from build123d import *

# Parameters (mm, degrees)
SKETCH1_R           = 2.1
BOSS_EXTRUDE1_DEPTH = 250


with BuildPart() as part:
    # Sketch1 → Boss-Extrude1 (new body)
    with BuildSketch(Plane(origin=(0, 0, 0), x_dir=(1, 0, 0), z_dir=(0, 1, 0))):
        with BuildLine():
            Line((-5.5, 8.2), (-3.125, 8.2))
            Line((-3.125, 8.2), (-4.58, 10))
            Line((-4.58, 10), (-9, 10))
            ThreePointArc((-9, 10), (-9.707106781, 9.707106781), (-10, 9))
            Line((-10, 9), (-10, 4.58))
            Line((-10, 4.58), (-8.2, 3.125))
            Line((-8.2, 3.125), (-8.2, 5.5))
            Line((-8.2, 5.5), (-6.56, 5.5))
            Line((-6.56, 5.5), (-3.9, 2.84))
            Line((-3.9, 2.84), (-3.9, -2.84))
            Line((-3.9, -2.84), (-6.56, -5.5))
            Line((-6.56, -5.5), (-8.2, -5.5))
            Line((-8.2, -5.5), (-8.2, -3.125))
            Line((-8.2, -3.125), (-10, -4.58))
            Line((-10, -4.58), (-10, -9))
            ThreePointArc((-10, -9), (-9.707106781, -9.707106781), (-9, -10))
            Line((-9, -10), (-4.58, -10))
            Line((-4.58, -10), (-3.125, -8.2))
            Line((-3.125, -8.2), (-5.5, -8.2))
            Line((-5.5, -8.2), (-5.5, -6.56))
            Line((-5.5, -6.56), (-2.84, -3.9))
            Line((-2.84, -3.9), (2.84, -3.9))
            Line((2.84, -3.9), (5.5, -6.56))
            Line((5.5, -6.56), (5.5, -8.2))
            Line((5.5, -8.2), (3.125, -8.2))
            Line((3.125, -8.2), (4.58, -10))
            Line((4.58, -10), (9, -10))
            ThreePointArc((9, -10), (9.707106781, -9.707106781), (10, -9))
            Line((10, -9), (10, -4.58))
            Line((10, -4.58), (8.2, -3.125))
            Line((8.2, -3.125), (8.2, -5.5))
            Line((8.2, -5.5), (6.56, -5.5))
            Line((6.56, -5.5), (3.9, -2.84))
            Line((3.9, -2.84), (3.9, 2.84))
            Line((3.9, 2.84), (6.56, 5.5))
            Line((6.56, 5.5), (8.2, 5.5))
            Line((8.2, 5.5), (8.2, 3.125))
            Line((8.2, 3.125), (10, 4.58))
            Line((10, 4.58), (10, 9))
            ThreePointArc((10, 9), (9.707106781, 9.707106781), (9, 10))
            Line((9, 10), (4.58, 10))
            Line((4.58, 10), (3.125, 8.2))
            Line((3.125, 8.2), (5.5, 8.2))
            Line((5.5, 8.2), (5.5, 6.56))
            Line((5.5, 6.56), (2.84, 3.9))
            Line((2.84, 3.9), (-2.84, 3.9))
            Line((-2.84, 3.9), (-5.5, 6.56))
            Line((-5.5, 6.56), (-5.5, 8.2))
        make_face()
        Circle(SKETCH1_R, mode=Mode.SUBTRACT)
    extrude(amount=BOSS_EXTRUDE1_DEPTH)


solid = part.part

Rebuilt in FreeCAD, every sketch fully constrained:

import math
import FreeCAD as App
import Part
import Sketcher
from FreeCAD import Vector
Q = App.Units.Quantity

doc = App.newDocument("Part")
body = doc.addObject("PartDesign::Body", "Body")

sketch1 = body.newObject("Sketcher::SketchObject", "Sketch")
sketch1.AttachmentSupport = (doc.getObject("XZ_Plane"), [""])
sketch1.MapMode = "FlatFace"
sketch1.addGeometry(Part.LineSegment(Vector(-5.5, -8.2, 0), Vector(-3.1, -8.2, 0)), False)
sketch1.addGeometry(Part.LineSegment(Vector(-3.1, -8.2, 0), Vector(-4.6, -10, 0)), False)
sketch1.addGeometry(Part.LineSegment(Vector(-4.6, -10, 0), Vector(-9, -10, 0)), False)
sketch1.addGeometry(Part.ArcOfCircle(Part.Circle(Vector(-9, -9, 0), Vector(0, 0, 1), 1), math.radians(-180), math.radians(-90)), False)
sketch1.addGeometry(Part.LineSegment(Vector(-10, -9, 0), Vector(-10, -4.6, 0)), False)
sketch1.addGeometry(Part.LineSegment(Vector(-10, -4.6, 0), Vector(-8.2, -3.1, 0)), False)
sketch1.addGeometry(Part.LineSegment(Vector(-8.2, -3.1, 0), Vector(-8.2, -5.5, 0)), False)
sketch1.addGeometry(Part.LineSegment(Vector(-8.2, -5.5, 0), Vector(-6.6, -5.5, 0)), False)
sketch1.addGeometry(Part.LineSegment(Vector(-6.6, -5.5, 0), Vector(-3.9, -2.8, 0)), False)
sketch1.addGeometry(Part.LineSegment(Vector(-3.9, -2.8, 0), Vector(-3.9, 2.8, 0)), False)
sketch1.addGeometry(Part.LineSegment(Vector(-3.9, 2.8, 0), Vector(-6.6, 5.5, 0)), False)
sketch1.addGeometry(Part.LineSegment(Vector(-6.6, 5.5, 0), Vector(-8.2, 5.5, 0)), False)
sketch1.addGeometry(Part.LineSegment(Vector(-8.2, 5.5, 0), Vector(-8.2, 3.1, 0)), False)
sketch1.addGeometry(Part.LineSegment(Vector(-8.2, 3.1, 0), Vector(-10, 4.6, 0)), False)
sketch1.addGeometry(Part.LineSegment(Vector(-10, 4.6, 0), Vector(-10, 9, 0)), False)
sketch1.addGeometry(Part.ArcOfCircle(Part.Circle(Vector(-9, 9, 0), Vector(0, 0, 1), 1), math.radians(90), math.radians(180)), False)
sketch1.addGeometry(Part.LineSegment(Vector(-9, 10, 0), Vector(-4.6, 10, 0)), False)
sketch1.addGeometry(Part.LineSegment(Vector(-4.6, 10, 0), Vector(-3.1, 8.2, 0)), False)
sketch1.addGeometry(Part.LineSegment(Vector(-3.1, 8.2, 0), Vector(-5.5, 8.2, 0)), False)
sketch1.addGeometry(Part.LineSegment(Vector(-5.5, 8.2, 0), Vector(-5.5, 6.6, 0)), False)
sketch1.addGeometry(Part.LineSegment(Vector(-5.5, 6.6, 0), Vector(-2.8, 3.9, 0)), False)
sketch1.addGeometry(Part.LineSegment(Vector(-2.8, 3.9, 0), Vector(2.8, 3.9, 0)), False)
sketch1.addGeometry(Part.LineSegment(Vector(2.8, 3.9, 0), Vector(5.5, 6.6, 0)), False)
sketch1.addGeometry(Part.LineSegment(Vector(5.5, 6.6, 0), Vector(5.5, 8.2, 0)), False)
sketch1.addGeometry(Part.LineSegment(Vector(5.5, 8.2, 0), Vector(3.1, 8.2, 0)), False)
sketch1.addGeometry(Part.LineSegment(Vector(3.1, 8.2, 0), Vector(4.6, 10, 0)), False)
sketch1.addGeometry(Part.LineSegment(Vector(4.6, 10, 0), Vector(9, 10, 0)), False)
sketch1.addGeometry(Part.ArcOfCircle(Part.Circle(Vector(9, 9, 0), Vector(0, 0, 1), 1), math.radians(0), math.radians(90)), False)
sketch1.addGeometry(Part.LineSegment(Vector(10, 9, 0), Vector(10, 4.6, 0)), False)
sketch1.addGeometry(Part.LineSegment(Vector(10, 4.6, 0), Vector(8.2, 3.1, 0)), False)
sketch1.addGeometry(Part.LineSegment(Vector(8.2, 3.1, 0), Vector(8.2, 5.5, 0)), False)
sketch1.addGeometry(Part.LineSegment(Vector(8.2, 5.5, 0), Vector(6.6, 5.5, 0)), False)
sketch1.addGeometry(Part.LineSegment(Vector(6.6, 5.5, 0), Vector(3.9, 2.8, 0)), False)
sketch1.addGeometry(Part.LineSegment(Vector(3.9, 2.8, 0), Vector(3.9, -2.8, 0)), False)
sketch1.addGeometry(Part.LineSegment(Vector(3.9, -2.8, 0), Vector(6.6, -5.5, 0)), False)
sketch1.addGeometry(Part.LineSegment(Vector(6.6, -5.5, 0), Vector(8.2, -5.5, 0)), False)
sketch1.addGeometry(Part.LineSegment(Vector(8.2, -5.5, 0), Vector(8.2, -3.1, 0)), False)
sketch1.addGeometry(Part.LineSegment(Vector(8.2, -3.1, 0), Vector(10, -4.6, 0)), False)
sketch1.addGeometry(Part.LineSegment(Vector(10, -4.6, 0), Vector(10, -9, 0)), False)
sketch1.addGeometry(Part.ArcOfCircle(Part.Circle(Vector(9, -9, 0), Vector(0, 0, 1), 1), math.radians(-90), math.radians(0)), False)
sketch1.addGeometry(Part.LineSegment(Vector(9, -10, 0), Vector(4.6, -10, 0)), False)
sketch1.addGeometry(Part.LineSegment(Vector(4.6, -10, 0), Vector(3.1, -8.2, 0)), False)
sketch1.addGeometry(Part.LineSegment(Vector(3.1, -8.2, 0), Vector(5.5, -8.2, 0)), False)
sketch1.addGeometry(Part.LineSegment(Vector(5.5, -8.2, 0), Vector(5.5, -6.6, 0)), False)
sketch1.addGeometry(Part.LineSegment(Vector(5.5, -6.6, 0), Vector(2.8, -3.9, 0)), False)
sketch1.addGeometry(Part.LineSegment(Vector(2.8, -3.9, 0), Vector(-2.8, -3.9, 0)), False)
sketch1.addGeometry(Part.LineSegment(Vector(-2.8, -3.9, 0), Vector(-5.5, -6.6, 0)), False)
sketch1.addGeometry(Part.LineSegment(Vector(-5.5, -6.6, 0), Vector(-5.5, -8.2, 0)), False)
sketch1.addGeometry(Part.Circle(Vector(0, 0, 0), Vector(0, 0, 1), 2.1), False)
sketch1.addConstraint(Sketcher.Constraint("Coincident", 0, 2, 1, 1))
sketch1.addConstraint(Sketcher.Constraint("Coincident", 1, 2, 2, 1))
sketch1.addConstraint(Sketcher.Constraint("Tangent", 2, 2, 3, 2))
sketch1.addConstraint(Sketcher.Constraint("Tangent", 3, 1, 4, 1))
sketch1.addConstraint(Sketcher.Constraint("Coincident", 4, 2, 5, 1))
sketch1.addConstraint(Sketcher.Constraint("Coincident", 5, 2, 6, 1))
sketch1.addConstraint(Sketcher.Constraint("Coincident", 6, 2, 7, 1))
sketch1.addConstraint(Sketcher.Constraint("Coincident", 7, 2, 8, 1))
sketch1.addConstraint(Sketcher.Constraint("Coincident", 8, 2, 9, 1))
sketch1.addConstraint(Sketcher.Constraint("Coincident", 9, 2, 10, 1))
sketch1.addConstraint(Sketcher.Constraint("Coincident", 10, 2, 11, 1))
sketch1.addConstraint(Sketcher.Constraint("Coincident", 11, 2, 12, 1))
sketch1.addConstraint(Sketcher.Constraint("Coincident", 12, 2, 13, 1))
sketch1.addConstraint(Sketcher.Constraint("Coincident", 13, 2, 14, 1))
sketch1.addConstraint(Sketcher.Constraint("Tangent", 14, 2, 15, 2))
sketch1.addConstraint(Sketcher.Constraint("Tangent", 15, 1, 16, 1))
sketch1.addConstraint(Sketcher.Constraint("Coincident", 16, 2, 17, 1))
sketch1.addConstraint(Sketcher.Constraint("Coincident", 17, 2, 18, 1))
sketch1.addConstraint(Sketcher.Constraint("Coincident", 18, 2, 19, 1))
sketch1.addConstraint(Sketcher.Constraint("Coincident", 19, 2, 20, 1))
sketch1.addConstraint(Sketcher.Constraint("Coincident", 20, 2, 21, 1))
sketch1.addConstraint(Sketcher.Constraint("Coincident", 21, 2, 22, 1))
sketch1.addConstraint(Sketcher.Constraint("Coincident", 22, 2, 23, 1))
sketch1.addConstraint(Sketcher.Constraint("Coincident", 23, 2, 24, 1))
sketch1.addConstraint(Sketcher.Constraint("Coincident", 24, 2, 25, 1))
sketch1.addConstraint(Sketcher.Constraint("Coincident", 25, 2, 26, 1))
sketch1.addConstraint(Sketcher.Constraint("Tangent", 26, 2, 27, 2))
sketch1.addConstraint(Sketcher.Constraint("Tangent", 27, 1, 28, 1))
sketch1.addConstraint(Sketcher.Constraint("Coincident", 28, 2, 29, 1))
sketch1.addConstraint(Sketcher.Constraint("Coincident", 29, 2, 30, 1))
sketch1.addConstraint(Sketcher.Constraint("Coincident", 30, 2, 31, 1))
sketch1.addConstraint(Sketcher.Constraint("Coincident", 31, 2, 32, 1))
sketch1.addConstraint(Sketcher.Constraint("Coincident", 32, 2, 33, 1))
sketch1.addConstraint(Sketcher.Constraint("Coincident", 33, 2, 34, 1))
sketch1.addConstraint(Sketcher.Constraint("Coincident", 34, 2, 35, 1))
sketch1.addConstraint(Sketcher.Constraint("Coincident", 35, 2, 36, 1))
sketch1.addConstraint(Sketcher.Constraint("Coincident", 36, 2, 37, 1))
sketch1.addConstraint(Sketcher.Constraint("Coincident", 37, 2, 38, 1))
sketch1.addConstraint(Sketcher.Constraint("Tangent", 38, 2, 39, 2))
sketch1.addConstraint(Sketcher.Constraint("Tangent", 39, 1, 40, 1))
sketch1.addConstraint(Sketcher.Constraint("Coincident", 40, 2, 41, 1))
sketch1.addConstraint(Sketcher.Constraint("Coincident", 41, 2, 42, 1))
sketch1.addConstraint(Sketcher.Constraint("Coincident", 42, 2, 43, 1))
sketch1.addConstraint(Sketcher.Constraint("Coincident", 43, 2, 44, 1))
sketch1.addConstraint(Sketcher.Constraint("Coincident", 44, 2, 45, 1))
sketch1.addConstraint(Sketcher.Constraint("Coincident", 45, 2, 46, 1))
sketch1.addConstraint(Sketcher.Constraint("Coincident", 46, 2, 47, 1))
sketch1.addConstraint(Sketcher.Constraint("Coincident", 47, 2, 0, 1))
sketch1.addConstraint(Sketcher.Constraint("Horizontal", 0))
sketch1.addConstraint(Sketcher.Constraint("Horizontal", 2))
sketch1.addConstraint(Sketcher.Constraint("Vertical", 4))
sketch1.addConstraint(Sketcher.Constraint("Vertical", 6))
sketch1.addConstraint(Sketcher.Constraint("Horizontal", 7))
sketch1.addConstraint(Sketcher.Constraint("Vertical", 9))
sketch1.addConstraint(Sketcher.Constraint("Horizontal", 11))
sketch1.addConstraint(Sketcher.Constraint("Vertical", 12))
sketch1.addConstraint(Sketcher.Constraint("Vertical", 14))
sketch1.addConstraint(Sketcher.Constraint("Horizontal", 16))
sketch1.addConstraint(Sketcher.Constraint("Horizontal", 18))
sketch1.addConstraint(Sketcher.Constraint("Vertical", 19))
sketch1.addConstraint(Sketcher.Constraint("Horizontal", 21))
sketch1.addConstraint(Sketcher.Constraint("Vertical", 23))
sketch1.addConstraint(Sketcher.Constraint("Horizontal", 24))
sketch1.addConstraint(Sketcher.Constraint("Horizontal", 26))
sketch1.addConstraint(Sketcher.Constraint("Vertical", 28))
sketch1.addConstraint(Sketcher.Constraint("Vertical", 30))
sketch1.addConstraint(Sketcher.Constraint("Horizontal", 31))
sketch1.addConstraint(Sketcher.Constraint("Vertical", 33))
sketch1.addConstraint(Sketcher.Constraint("Horizontal", 35))
sketch1.addConstraint(Sketcher.Constraint("Vertical", 36))
sketch1.addConstraint(Sketcher.Constraint("Vertical", 38))
sketch1.addConstraint(Sketcher.Constraint("Horizontal", 40))
sketch1.addConstraint(Sketcher.Constraint("Horizontal", 42))
sketch1.addConstraint(Sketcher.Constraint("Vertical", 43))
sketch1.addConstraint(Sketcher.Constraint("Horizontal", 45))
sketch1.addConstraint(Sketcher.Constraint("Vertical", 47))
sketch1.addConstraint(Sketcher.Constraint("Coincident", 48, 3, -1, 1))
sketch1.addConstraint(Sketcher.Constraint("Equal", 3, 15))
sketch1.addConstraint(Sketcher.Constraint("Equal", 15, 27))
sketch1.addConstraint(Sketcher.Constraint("Equal", 27, 39))
sketch1.addConstraint(Sketcher.Constraint("Symmetric", 3, 3, 27, 3, -1, 1))
sketch1.addConstraint(Sketcher.Constraint("Symmetric", 15, 3, 39, 3, -1, 1))
sketch1.addConstraint(Sketcher.Constraint("Symmetric", 0, 2, 24, 2, -1, 1))
sketch1.addConstraint(Sketcher.Constraint("Symmetric", 5, 2, 29, 2, -1, 1))
sketch1.addConstraint(Sketcher.Constraint("Symmetric", 7, 2, 31, 2, -1, 1))
sketch1.addConstraint(Sketcher.Constraint("Symmetric", 8, 2, 32, 2, -1, 1))
sketch1.addConstraint(Sketcher.Constraint("Symmetric", 10, 2, 34, 2, -1, 1))
sketch1.addConstraint(Sketcher.Constraint("Symmetric", 12, 2, 36, 2, -1, 1))
sketch1.addConstraint(Sketcher.Constraint("Symmetric", 17, 2, 41, 2, -1, 1))
sketch1.addConstraint(Sketcher.Constraint("Symmetric", 19, 2, 43, 2, -1, 1))
sketch1.addConstraint(Sketcher.Constraint("Symmetric", 20, 2, 44, 2, -1, 1))
sketch1.addConstraint(Sketcher.Constraint("Symmetric", 22, 2, 46, 2, -1, 1))
sketch1.addConstraint(Sketcher.Constraint("Symmetric", 15, 3, 27, 3, -2))
sketch1.addConstraint(Sketcher.Constraint("Symmetric", 19, 2, 22, 2, -2))
sketch1.addConstraint(Sketcher.Constraint("Symmetric", 17, 2, 24, 2, -2))
sketch1.addConstraint(Sketcher.Constraint("Symmetric", 12, 2, 29, 2, -2))
sketch1.addConstraint(Sketcher.Constraint("Symmetric", 10, 2, 31, 2, -2))
sketch1.addConstraint(Sketcher.Constraint("Perpendicular", 8, 10))
sketch1.addConstraint(Sketcher.Constraint("Perpendicular", 1, 13))
sketch1.addConstraint(Sketcher.Constraint("Perpendicular", 5, 17))
sketch1.addConstraint(Sketcher.Constraint("Parallel", 10, 20))
sketch1.addConstraint(Sketcher.Constraint("Perpendicular", 20, 22))
sketch1.addConstraint(Sketcher.Constraint("Perpendicular", 13, 25))
sketch1.addConstraint(Sketcher.Constraint("Perpendicular", 17, 29))
sketch1.addConstraint(Sketcher.Constraint("Perpendicular", 32, 34))
sketch1.addConstraint(Sketcher.Constraint("Perpendicular", 25, 37))
sketch1.addConstraint(Sketcher.Constraint("Perpendicular", 29, 41))
sketch1.addConstraint(Sketcher.Constraint("Perpendicular", 44, 46))
sketch1.addConstraint(Sketcher.Constraint("Horizontal", 13, 2, 28, 2))
sketch1.addConstraint(Sketcher.Constraint("Horizontal", 9, 2, 32, 2))
sketch1.addConstraint(Sketcher.Constraint("Equal", 40, 4))
sketch1.addConstraint(Sketcher.Constraint("Equal", 42, 6))
sketch1.addConstraint(Sketcher.Constraint("Equal", 45, 9))
sketch1.addConstraint(Sketcher.Constraint("Equal", 35, 19))
sketch1.addConstraint(Sketcher.Constraint("Equal", 1, 5))
sketch1.addConstraint(Sketcher.Constraint("Equal", 10, 20))
sketch1.addConstraint(Sketcher.Constraint("Radius", 3, Q("1 mm")))
sketch1.addConstraint(Sketcher.Constraint("Diameter", 48, Q("4.2 mm")))
sketch1.addConstraint(Sketcher.Constraint("DistanceX", 3, 3, -1, 1, Q("9 mm")))
sketch1.addConstraint(Sketcher.Constraint("DistanceX", 2, 2, 2, 1, Q("4.42 mm")))
sketch1.addConstraint(Sketcher.Constraint("DistanceX", 7, 1, 7, 2, Q("1.64 mm")))
sketch1.addConstraint(Sketcher.Constraint("DistanceX", 21, 1, 21, 2, Q("5.68 mm")))
sketch1.addConstraint(Sketcher.Constraint("DistanceY", 0, 2, -1, 1, Q("8.2 mm")))
sketch1.addConstraint(Sketcher.Constraint("DistanceY", 6, 2, -1, 1, Q("5.5 mm")))
sketch1.addConstraint(Sketcher.Constraint("DistanceX", 0, 1, 0, 2, Q("2.375 mm")))
pad1 = body.newObject("PartDesign::Pad", "Pad")
pad1.Profile = sketch1
pad1.Length = 250
pad1.Reversed = True

doc.recompute()
